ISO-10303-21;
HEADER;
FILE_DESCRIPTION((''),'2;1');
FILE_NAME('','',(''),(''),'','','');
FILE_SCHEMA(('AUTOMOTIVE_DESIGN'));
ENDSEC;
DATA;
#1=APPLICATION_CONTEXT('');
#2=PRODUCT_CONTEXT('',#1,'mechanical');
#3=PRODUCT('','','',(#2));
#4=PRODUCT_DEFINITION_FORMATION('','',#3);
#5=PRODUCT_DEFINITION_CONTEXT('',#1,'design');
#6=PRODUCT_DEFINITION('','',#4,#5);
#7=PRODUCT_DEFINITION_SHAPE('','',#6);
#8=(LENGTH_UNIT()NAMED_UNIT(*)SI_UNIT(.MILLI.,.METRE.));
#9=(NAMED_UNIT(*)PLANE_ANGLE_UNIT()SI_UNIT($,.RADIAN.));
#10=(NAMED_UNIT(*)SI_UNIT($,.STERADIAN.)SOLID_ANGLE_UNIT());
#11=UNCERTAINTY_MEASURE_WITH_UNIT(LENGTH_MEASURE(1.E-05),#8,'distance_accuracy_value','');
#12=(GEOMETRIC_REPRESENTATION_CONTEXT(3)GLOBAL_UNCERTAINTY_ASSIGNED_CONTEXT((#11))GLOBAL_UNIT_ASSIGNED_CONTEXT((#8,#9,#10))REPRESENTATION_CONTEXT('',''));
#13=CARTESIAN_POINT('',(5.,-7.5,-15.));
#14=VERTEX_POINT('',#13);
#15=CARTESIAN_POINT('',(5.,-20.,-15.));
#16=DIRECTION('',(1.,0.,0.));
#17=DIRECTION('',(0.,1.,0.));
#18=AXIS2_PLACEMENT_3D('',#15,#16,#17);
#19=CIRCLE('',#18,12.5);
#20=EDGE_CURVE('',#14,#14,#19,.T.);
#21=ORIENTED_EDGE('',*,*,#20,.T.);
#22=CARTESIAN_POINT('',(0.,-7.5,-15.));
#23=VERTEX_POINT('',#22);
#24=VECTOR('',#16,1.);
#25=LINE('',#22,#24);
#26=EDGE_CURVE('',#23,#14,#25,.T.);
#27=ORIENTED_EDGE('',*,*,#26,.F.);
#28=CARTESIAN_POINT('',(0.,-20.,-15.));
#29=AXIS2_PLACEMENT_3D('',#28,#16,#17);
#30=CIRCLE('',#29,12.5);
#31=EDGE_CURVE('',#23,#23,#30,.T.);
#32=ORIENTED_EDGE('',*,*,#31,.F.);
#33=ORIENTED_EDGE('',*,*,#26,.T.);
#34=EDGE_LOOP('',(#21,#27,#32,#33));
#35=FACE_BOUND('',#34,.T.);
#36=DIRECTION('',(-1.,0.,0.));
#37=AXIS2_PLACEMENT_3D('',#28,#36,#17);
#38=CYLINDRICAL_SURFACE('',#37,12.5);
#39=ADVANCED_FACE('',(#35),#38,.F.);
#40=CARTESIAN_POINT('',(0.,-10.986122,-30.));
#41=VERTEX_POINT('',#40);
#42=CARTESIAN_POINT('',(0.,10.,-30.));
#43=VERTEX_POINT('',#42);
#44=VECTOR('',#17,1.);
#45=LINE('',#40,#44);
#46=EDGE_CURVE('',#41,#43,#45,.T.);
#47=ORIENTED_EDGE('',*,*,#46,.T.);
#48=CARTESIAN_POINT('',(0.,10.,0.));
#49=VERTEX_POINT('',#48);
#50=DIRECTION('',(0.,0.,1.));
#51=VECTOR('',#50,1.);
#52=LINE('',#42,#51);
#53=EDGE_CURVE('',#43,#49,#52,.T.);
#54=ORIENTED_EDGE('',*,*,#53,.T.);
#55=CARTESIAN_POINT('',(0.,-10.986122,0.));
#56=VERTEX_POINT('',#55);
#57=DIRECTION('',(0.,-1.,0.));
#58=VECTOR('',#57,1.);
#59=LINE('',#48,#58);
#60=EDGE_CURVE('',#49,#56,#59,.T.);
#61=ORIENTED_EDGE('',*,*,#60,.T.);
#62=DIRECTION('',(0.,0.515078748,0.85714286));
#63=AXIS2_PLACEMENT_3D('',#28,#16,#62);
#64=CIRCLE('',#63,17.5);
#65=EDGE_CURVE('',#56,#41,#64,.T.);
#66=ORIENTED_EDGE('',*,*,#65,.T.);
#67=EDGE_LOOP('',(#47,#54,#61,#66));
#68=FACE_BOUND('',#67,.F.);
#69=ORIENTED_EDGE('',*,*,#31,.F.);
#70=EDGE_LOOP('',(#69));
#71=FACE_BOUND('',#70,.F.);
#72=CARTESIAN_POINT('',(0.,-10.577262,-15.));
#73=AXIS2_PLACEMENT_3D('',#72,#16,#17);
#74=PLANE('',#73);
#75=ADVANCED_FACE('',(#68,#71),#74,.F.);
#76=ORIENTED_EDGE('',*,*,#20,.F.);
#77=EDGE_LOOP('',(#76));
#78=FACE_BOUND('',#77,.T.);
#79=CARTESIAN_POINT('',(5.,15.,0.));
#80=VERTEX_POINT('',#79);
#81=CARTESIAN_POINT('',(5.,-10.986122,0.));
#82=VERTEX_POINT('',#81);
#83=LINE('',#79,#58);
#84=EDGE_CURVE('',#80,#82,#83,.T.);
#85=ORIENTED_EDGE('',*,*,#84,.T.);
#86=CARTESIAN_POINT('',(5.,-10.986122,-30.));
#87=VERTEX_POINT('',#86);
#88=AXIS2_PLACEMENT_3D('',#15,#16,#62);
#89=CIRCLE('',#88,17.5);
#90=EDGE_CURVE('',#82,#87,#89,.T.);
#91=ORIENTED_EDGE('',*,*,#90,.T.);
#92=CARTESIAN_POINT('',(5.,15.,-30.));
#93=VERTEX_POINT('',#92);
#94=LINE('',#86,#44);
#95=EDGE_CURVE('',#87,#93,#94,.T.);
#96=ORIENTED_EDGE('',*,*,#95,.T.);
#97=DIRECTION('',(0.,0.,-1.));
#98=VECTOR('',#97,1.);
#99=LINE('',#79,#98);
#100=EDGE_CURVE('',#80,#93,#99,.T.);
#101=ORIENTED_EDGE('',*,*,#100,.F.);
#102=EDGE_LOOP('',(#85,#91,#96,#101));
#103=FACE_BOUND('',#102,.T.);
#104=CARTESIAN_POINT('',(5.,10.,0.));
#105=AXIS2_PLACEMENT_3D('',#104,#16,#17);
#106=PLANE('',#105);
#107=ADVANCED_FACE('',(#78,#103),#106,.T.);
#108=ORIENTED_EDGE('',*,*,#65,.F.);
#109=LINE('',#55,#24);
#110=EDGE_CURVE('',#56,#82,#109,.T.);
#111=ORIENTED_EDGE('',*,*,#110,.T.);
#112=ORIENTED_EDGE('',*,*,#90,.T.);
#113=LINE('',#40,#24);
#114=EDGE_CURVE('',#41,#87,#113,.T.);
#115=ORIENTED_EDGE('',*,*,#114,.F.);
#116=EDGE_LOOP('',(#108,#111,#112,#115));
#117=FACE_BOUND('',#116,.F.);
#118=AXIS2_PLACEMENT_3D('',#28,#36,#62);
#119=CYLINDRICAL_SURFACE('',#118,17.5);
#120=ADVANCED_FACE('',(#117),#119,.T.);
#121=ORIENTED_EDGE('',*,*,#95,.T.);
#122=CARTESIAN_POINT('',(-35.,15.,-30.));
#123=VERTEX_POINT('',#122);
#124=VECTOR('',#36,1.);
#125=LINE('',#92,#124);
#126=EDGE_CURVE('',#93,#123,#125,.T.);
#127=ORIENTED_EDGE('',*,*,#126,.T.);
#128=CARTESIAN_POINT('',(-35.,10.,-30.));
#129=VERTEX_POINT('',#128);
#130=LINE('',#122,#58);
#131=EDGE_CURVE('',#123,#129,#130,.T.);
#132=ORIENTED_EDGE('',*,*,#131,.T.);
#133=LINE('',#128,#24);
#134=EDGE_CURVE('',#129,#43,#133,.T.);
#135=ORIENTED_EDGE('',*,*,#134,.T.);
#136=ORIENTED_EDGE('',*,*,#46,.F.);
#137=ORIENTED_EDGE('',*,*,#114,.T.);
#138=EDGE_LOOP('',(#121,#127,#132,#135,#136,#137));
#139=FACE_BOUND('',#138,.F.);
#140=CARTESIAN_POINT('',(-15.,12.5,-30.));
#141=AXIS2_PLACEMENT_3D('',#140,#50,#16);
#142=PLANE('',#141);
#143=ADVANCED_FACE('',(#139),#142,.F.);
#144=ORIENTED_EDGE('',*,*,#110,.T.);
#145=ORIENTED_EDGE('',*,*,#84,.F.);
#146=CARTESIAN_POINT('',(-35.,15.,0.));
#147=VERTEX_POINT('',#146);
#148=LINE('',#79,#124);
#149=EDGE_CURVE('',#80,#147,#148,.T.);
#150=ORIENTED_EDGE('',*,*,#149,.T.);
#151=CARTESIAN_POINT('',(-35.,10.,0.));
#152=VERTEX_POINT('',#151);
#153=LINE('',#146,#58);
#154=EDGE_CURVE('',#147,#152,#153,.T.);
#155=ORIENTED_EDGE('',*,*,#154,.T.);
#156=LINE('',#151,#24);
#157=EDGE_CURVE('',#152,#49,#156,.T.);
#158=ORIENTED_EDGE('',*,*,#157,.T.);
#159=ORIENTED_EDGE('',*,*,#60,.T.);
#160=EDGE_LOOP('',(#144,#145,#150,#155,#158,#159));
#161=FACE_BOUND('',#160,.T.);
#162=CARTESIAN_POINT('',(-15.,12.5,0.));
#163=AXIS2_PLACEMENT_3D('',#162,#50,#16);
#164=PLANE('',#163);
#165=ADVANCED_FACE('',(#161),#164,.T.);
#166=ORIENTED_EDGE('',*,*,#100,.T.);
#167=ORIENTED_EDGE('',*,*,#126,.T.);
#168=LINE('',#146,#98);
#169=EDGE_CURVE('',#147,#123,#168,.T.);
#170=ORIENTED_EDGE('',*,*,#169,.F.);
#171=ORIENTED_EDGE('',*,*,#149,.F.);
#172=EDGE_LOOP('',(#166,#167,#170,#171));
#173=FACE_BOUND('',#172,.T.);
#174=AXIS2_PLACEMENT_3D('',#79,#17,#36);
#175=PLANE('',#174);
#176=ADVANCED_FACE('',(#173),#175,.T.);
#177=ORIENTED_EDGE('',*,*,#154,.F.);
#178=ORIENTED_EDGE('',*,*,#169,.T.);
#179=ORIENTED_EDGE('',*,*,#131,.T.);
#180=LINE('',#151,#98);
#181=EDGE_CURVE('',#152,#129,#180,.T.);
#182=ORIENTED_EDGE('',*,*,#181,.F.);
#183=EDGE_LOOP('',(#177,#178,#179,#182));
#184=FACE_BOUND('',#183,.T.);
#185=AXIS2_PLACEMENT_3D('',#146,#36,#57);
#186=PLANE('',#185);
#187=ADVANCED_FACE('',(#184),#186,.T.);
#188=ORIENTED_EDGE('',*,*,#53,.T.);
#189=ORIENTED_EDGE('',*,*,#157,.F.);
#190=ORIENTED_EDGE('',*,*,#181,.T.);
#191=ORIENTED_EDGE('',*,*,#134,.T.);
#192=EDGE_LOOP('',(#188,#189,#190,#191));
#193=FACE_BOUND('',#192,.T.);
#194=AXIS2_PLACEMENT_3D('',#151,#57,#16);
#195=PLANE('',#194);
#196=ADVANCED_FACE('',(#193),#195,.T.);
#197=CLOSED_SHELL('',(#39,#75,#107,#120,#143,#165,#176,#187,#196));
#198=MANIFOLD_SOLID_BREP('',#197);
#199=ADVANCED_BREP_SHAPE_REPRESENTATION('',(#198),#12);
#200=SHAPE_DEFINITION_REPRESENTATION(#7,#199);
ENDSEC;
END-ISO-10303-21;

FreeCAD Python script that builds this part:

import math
import FreeCAD as App
import Part
import Sketcher
from FreeCAD import Vector


def add_polygon(sketch, points):
    """Adds a closed chain of lines whose ends are joined by coincident constraints."""
    first, n = sketch.GeometryCount, len(points)
    for a, b in zip(points, points[1:] + points[:1]):
        sketch.addGeometry(Part.LineSegment(App.Vector(*a, 0), App.Vector(*b, 0)), False)
    for i in range(n):
        sketch.addConstraint(Sketcher.Constraint("Coincident", first + i, 2, first + (i + 1) % n, 1))

doc = App.newDocument("Part")
body = doc.addObject("PartDesign::Body", "Body")

sketch1 = body.newObject("Sketcher::SketchObject", "Sketch")
sketch1.AttachmentSupport = (doc.getObject("YZ_Plane"), [""])
sketch1.MapMode = "FlatFace"
sketch1.addGeometry([
    Part.LineSegment(Vector(10, 0, 0), Vector(-11, 0, 0)),
    Part.ArcOfCircle(Part.Circle(Vector(-20, -15, 0), Vector(0, 0, 1), 17), math.radians(59), math.radians(301)),
    Part.LineSegment(Vector(-11, -30, 0), Vector(10, -30, 0)),
    Part.LineSegment(Vector(10, -30, 0), Vector(10, 0, 0)),
    Part.Circle(Vector(-20, -15, 0), Vector(0, 0, 1), 12),
], False)
sketch1.addConstraint([
    Sketcher.Constraint("Coincident", 0, 2, 1, 1),
    Sketcher.Constraint("Coincident", 1, 2, 2, 1),
    Sketcher.Constraint("Coincident", 2, 2, 3, 1),
    Sketcher.Constraint("Coincident", 3, 2, 0, 1),
    Sketcher.Constraint("Horizontal", 0),
    Sketcher.Constraint("Horizontal", 2),
    Sketcher.Constraint("Vertical", 3),
    Sketcher.Constraint("Coincident", 4, 3, 1, 3),
    Sketcher.Constraint("PointOnObject", 0, 2, -1),
    Sketcher.Constraint("Vertical", 0, 2, 1, 2),
    Sketcher.Constraint("Diameter", 4, 25.0),
    Sketcher.Constraint("Radius", 1, 17.5),
    Sketcher.Constraint("DistanceY", 3, 1, 3, 2, 30.0),
    Sketcher.Constraint("DistanceX", 1, 3, -1, 1, 20.0),
    Sketcher.Constraint("DistanceX", -1, 1, 2, 2, 10.0),
])
pad1 = body.newObject("PartDesign::Pad", "Pad")
pad1.Profile = sketch1
pad1.Length = 5

sketch2 = body.newObject("Sketcher::SketchObject", "Sketch001")
sketch2.AttachmentSupport = (doc.getObject("XY_Plane"), [""])
sketch2.MapMode = "FlatFace"
add_polygon(sketch2, [(5, 10), (5, 15), (-35, 15), (-35, 10)])
sketch2.addConstraint([
    Sketcher.Constraint("Vertical", 0),
    Sketcher.Constraint("Horizontal", 1),
    Sketcher.Constraint("Vertical", 2),
    Sketcher.Constraint("Horizontal", 3),
    Sketcher.Constraint("DistanceX", 1, 2, 1, 1, 40.0),
    Sketcher.Constraint("DistanceY", 0, 1, 0, 2, 5.0),
    Sketcher.Constraint("DistanceX", -1, 1, 0, 2, 5.0),
    Sketcher.Constraint("DistanceY", -1, 1, 0, 2, 15.0),
])
pad2 = body.newObject("PartDesign::Pad", "Pad001")
pad2.Profile = sketch2
pad2.Length = 30
pad2.Reversed = True

doc.recompute()
